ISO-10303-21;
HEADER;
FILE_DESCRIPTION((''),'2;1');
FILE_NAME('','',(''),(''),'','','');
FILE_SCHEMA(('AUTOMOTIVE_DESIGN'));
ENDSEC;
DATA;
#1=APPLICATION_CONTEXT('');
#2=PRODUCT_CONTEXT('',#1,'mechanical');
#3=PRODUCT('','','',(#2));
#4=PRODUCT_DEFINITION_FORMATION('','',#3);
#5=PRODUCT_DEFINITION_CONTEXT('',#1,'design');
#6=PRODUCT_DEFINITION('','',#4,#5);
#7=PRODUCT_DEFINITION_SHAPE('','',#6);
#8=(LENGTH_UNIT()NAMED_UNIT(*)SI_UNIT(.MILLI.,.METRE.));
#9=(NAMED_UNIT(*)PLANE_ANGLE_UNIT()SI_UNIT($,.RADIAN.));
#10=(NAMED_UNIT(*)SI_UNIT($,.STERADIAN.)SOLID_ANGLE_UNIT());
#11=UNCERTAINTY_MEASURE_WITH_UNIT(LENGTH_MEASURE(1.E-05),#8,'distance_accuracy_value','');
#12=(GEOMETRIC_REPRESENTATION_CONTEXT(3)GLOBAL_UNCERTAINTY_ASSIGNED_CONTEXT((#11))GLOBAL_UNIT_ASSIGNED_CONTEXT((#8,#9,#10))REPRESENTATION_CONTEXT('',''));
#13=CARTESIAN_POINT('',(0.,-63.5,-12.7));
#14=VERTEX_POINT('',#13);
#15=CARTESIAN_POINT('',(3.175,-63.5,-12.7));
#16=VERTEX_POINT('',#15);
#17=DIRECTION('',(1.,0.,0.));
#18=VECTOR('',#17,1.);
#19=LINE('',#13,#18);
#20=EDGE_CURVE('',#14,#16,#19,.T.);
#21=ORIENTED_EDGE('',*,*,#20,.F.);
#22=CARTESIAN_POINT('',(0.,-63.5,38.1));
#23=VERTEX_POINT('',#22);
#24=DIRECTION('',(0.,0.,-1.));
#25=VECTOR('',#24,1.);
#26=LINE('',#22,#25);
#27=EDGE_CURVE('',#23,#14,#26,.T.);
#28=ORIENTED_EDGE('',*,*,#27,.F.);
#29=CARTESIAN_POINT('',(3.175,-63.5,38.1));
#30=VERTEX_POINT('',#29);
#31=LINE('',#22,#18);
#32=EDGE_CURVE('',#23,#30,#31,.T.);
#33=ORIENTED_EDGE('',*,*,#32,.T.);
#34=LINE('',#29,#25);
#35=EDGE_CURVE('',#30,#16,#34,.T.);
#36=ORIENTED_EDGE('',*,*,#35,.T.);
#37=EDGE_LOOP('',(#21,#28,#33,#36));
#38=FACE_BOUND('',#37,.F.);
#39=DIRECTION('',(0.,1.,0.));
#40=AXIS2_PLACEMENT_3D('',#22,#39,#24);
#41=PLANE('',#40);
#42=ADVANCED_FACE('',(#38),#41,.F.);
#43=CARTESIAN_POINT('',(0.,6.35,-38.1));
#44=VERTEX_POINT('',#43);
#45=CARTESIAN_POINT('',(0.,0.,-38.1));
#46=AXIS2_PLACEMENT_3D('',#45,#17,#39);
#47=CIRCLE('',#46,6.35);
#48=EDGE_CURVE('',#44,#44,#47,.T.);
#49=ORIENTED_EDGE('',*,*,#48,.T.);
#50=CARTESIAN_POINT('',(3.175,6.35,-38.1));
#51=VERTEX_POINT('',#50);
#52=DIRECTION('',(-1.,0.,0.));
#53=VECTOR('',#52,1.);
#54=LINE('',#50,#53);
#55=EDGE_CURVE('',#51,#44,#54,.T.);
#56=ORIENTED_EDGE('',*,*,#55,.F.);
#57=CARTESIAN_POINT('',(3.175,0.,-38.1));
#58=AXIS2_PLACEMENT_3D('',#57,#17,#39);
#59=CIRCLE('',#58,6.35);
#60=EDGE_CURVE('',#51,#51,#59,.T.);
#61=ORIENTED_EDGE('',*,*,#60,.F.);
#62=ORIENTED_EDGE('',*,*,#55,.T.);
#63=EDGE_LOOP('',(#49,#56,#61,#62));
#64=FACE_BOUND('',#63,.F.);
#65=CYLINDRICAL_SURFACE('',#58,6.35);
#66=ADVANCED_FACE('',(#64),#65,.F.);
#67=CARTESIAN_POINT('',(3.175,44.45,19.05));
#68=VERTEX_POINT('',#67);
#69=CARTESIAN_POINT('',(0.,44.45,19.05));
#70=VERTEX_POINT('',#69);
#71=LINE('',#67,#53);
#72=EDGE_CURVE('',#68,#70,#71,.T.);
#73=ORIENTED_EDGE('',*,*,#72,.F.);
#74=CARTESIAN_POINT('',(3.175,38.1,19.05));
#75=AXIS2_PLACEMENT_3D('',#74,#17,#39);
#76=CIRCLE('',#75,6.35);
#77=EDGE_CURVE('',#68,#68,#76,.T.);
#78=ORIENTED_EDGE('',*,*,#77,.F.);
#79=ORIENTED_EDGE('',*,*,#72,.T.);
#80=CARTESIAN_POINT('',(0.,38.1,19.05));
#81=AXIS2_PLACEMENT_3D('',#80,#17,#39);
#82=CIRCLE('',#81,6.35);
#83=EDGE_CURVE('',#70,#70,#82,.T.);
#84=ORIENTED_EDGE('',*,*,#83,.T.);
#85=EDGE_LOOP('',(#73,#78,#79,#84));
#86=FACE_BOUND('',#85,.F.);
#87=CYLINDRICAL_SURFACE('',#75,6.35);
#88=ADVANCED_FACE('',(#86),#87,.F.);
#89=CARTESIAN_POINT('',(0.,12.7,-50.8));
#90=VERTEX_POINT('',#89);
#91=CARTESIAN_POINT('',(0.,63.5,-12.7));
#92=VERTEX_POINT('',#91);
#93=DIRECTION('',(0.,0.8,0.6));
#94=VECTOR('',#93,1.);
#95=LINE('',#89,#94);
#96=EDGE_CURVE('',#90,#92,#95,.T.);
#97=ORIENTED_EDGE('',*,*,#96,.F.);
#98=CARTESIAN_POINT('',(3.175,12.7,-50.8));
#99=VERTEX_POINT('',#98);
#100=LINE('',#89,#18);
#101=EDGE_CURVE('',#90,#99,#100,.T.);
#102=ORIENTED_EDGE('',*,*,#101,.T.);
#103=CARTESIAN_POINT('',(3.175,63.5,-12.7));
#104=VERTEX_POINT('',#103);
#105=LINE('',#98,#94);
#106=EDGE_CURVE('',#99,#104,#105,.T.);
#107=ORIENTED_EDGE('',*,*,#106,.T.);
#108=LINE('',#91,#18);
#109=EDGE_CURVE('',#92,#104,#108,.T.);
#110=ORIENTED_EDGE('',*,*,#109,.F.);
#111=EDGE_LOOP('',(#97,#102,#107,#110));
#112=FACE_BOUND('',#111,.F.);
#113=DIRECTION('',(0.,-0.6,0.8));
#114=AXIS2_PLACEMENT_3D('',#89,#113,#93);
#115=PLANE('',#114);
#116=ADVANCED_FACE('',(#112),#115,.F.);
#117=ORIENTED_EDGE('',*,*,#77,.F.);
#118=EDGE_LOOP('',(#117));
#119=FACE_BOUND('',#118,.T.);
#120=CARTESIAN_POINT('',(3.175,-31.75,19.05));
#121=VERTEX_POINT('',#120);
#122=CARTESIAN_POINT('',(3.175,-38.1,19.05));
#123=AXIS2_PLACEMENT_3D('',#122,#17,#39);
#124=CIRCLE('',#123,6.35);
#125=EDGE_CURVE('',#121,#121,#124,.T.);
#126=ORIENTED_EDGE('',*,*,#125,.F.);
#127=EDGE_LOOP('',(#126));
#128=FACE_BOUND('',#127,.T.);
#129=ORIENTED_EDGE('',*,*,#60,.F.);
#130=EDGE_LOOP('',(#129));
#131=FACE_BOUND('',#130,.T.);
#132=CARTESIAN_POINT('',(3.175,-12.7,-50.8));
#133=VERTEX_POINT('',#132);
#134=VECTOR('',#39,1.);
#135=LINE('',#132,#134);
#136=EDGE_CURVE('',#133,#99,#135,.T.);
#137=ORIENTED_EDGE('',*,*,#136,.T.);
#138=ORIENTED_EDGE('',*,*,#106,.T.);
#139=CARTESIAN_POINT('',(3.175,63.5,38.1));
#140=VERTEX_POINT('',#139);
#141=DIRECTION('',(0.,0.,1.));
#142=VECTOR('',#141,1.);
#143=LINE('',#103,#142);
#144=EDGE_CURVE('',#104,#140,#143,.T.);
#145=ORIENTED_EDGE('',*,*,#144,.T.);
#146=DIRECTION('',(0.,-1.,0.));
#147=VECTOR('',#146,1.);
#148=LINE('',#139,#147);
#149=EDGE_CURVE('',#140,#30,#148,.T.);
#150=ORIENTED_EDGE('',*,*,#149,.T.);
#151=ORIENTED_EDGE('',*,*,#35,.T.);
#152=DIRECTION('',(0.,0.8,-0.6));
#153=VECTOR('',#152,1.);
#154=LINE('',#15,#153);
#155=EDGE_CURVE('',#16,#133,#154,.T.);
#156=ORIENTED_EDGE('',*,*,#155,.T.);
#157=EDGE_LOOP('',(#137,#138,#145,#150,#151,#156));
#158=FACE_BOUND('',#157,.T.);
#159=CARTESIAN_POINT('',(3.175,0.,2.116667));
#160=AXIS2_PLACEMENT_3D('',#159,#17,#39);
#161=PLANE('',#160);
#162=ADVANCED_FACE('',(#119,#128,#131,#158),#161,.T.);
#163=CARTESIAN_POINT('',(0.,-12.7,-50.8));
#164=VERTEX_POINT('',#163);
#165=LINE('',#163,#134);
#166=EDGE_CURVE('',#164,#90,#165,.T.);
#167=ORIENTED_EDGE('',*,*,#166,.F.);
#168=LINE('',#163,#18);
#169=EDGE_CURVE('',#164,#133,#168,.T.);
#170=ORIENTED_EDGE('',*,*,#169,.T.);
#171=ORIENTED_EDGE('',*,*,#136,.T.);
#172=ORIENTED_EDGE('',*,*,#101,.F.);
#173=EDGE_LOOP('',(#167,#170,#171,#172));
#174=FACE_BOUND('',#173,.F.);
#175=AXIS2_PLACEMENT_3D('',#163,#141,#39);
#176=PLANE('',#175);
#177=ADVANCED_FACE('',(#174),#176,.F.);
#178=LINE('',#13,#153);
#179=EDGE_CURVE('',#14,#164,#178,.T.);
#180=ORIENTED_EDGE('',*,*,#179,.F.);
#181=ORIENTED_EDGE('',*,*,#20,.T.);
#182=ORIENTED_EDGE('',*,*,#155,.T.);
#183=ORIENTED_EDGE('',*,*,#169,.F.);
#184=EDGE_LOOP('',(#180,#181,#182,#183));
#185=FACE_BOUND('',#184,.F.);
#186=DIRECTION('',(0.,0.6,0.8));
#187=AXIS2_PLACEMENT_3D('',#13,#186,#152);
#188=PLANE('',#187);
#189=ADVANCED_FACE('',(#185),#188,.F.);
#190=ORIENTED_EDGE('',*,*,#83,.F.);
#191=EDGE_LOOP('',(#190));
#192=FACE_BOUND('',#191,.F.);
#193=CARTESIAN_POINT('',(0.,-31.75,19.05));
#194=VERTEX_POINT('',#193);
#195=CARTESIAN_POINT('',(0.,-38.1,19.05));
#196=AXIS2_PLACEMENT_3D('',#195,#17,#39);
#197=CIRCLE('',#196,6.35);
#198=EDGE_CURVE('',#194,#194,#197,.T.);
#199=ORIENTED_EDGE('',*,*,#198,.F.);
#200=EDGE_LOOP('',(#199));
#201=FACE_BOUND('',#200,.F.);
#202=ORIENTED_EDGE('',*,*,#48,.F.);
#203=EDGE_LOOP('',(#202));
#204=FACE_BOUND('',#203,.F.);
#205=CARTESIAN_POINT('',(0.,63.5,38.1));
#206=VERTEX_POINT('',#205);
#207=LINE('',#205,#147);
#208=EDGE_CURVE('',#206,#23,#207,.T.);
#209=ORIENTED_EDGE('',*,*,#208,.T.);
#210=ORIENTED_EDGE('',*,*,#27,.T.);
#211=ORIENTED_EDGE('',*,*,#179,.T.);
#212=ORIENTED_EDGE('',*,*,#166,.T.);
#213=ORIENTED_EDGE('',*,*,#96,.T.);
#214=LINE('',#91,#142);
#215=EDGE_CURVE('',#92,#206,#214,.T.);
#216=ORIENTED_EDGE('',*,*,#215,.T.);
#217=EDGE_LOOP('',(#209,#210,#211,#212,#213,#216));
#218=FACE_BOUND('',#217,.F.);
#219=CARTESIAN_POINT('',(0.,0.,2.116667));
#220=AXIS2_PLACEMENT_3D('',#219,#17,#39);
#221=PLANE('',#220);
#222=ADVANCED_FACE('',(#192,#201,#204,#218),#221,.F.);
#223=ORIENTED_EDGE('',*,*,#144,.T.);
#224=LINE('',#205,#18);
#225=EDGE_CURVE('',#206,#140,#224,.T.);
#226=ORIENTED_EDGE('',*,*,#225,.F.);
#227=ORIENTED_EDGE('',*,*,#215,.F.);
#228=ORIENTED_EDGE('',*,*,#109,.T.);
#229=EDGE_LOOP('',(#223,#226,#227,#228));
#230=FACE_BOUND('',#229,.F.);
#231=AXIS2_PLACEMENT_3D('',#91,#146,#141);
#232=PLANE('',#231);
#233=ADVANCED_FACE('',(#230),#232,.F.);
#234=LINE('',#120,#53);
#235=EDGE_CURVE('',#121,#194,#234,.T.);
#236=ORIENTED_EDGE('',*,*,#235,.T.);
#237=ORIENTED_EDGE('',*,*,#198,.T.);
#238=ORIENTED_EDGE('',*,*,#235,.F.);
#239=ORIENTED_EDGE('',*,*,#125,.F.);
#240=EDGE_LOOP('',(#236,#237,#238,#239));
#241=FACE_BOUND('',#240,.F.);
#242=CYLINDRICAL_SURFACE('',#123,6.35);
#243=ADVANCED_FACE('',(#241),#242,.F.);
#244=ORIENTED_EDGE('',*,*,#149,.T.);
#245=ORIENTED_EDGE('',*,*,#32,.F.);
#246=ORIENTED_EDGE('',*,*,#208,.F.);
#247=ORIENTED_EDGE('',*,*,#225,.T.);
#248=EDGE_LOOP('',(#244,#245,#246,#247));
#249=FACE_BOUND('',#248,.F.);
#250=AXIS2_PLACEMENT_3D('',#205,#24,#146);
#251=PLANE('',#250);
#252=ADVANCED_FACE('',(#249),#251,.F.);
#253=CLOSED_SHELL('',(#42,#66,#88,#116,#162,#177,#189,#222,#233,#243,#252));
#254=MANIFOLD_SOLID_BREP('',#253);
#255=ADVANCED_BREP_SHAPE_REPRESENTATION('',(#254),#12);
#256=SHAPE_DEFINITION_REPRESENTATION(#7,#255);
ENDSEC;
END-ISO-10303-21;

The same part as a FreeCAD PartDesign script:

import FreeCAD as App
import Part
import Sketcher

V = App.Vector
Q = App.Units.Quantity


def add_polygon(sketch, points):
    """Adds a closed chain of lines whose ends are joined by coincident constraints."""
    first, n = sketch.GeometryCount, len(points)
    for a, b in zip(points, points[1:] + points[:1]):
        sketch.addGeometry(Part.LineSegment(App.Vector(*a, 0), App.Vector(*b, 0)), False)
    for i in range(n):
        sketch.addConstraint(Sketcher.Constraint("Coincident", first + i, 2, first + (i + 1) % n, 1))

doc = App.newDocument("Part")
body = doc.addObject("PartDesign::Body", "Body")

# Sketch on YZ plane
sketch1 = body.newObject("Sketcher::SketchObject", "Sketch")
sketch1.AttachmentSupport = (doc.getObject("YZ_Plane"), [""])
sketch1.MapMode = "FlatFace"
add_polygon(sketch1, [(64, 38), (-64, 38), (-64, -13), (-13, -51), (13, -51), (64, -13)])  # lines 0-5
sketch1.addConstraint([
    Sketcher.Constraint("Horizontal", 0),
    Sketcher.Constraint("Vertical", 1),
    Sketcher.Constraint("Horizontal", 3),
    Sketcher.Constraint("Vertical", 5),
    Sketcher.Constraint("Symmetric", 1, 2, 4, 2, -2),
    Sketcher.Constraint("Equal", 2, 4),
    Sketcher.Constraint("DistanceX", 0, 2, 0, 1, Q("5 in")),
    Sketcher.Constraint("DistanceX", 3, 1, 3, 2, Q("1 in")),
    Sketcher.Constraint("DistanceY", 1, 2, 1, 1, Q("2 in")),
    Sketcher.Constraint("DistanceY", 2, 2, -1, 1, Q("2 in")),
    Sketcher.Constraint("Distance", 2, Q("2.5 in")),
])
pad1 = body.newObject("PartDesign::Pad", "Pad")
pad1.Profile = sketch1
pad1.Length = Q("0.125 in")

# Sketch on YZ plane
sketch2 = body.newObject("Sketcher::SketchObject", "Sketch001")
sketch2.AttachmentSupport = (doc.getObject("YZ_Plane"), [""])
sketch2.MapMode = "FlatFace"
sketch2.AttachmentOffset = App.Placement(V(0, 0, 0.125 * 25.4), App.Rotation())
sketch2.addGeometry([
    Part.Circle(V(-38, 19, 0), V(0, 0, 1), 6),
    Part.Circle(V(38, 19, 0), V(0, 0, 1), 6),
    Part.Circle(V(0, -38, 0), V(0, 0, 1), 6),
], False)
sketch2.addConstraint([
    Sketcher.Constraint("Equal", 0, 1),
    Sketcher.Constraint("Equal", 1, 2),
    Sketcher.Constraint("Symmetric", 0, 3, 1, 3, -2),
    Sketcher.Constraint("PointOnObject", 2, 3, -2),
    Sketcher.Constraint("Diameter", 0, Q("0.5 in")),
    Sketcher.Constraint("DistanceX", 0, 3, 1, 3, Q("3 in")),
    Sketcher.Constraint("DistanceY", 2, 3, -1, 1, Q("1.5 in")),
    Sketcher.Constraint("DistanceY", -1, 1, 0, 3, Q("0.75 in")),
])
pocket1 = body.newObject("PartDesign::Pocket", "Pocket")
pocket1.Profile = sketch2
pocket1.Type = "ThroughAll"

doc.recompute()
